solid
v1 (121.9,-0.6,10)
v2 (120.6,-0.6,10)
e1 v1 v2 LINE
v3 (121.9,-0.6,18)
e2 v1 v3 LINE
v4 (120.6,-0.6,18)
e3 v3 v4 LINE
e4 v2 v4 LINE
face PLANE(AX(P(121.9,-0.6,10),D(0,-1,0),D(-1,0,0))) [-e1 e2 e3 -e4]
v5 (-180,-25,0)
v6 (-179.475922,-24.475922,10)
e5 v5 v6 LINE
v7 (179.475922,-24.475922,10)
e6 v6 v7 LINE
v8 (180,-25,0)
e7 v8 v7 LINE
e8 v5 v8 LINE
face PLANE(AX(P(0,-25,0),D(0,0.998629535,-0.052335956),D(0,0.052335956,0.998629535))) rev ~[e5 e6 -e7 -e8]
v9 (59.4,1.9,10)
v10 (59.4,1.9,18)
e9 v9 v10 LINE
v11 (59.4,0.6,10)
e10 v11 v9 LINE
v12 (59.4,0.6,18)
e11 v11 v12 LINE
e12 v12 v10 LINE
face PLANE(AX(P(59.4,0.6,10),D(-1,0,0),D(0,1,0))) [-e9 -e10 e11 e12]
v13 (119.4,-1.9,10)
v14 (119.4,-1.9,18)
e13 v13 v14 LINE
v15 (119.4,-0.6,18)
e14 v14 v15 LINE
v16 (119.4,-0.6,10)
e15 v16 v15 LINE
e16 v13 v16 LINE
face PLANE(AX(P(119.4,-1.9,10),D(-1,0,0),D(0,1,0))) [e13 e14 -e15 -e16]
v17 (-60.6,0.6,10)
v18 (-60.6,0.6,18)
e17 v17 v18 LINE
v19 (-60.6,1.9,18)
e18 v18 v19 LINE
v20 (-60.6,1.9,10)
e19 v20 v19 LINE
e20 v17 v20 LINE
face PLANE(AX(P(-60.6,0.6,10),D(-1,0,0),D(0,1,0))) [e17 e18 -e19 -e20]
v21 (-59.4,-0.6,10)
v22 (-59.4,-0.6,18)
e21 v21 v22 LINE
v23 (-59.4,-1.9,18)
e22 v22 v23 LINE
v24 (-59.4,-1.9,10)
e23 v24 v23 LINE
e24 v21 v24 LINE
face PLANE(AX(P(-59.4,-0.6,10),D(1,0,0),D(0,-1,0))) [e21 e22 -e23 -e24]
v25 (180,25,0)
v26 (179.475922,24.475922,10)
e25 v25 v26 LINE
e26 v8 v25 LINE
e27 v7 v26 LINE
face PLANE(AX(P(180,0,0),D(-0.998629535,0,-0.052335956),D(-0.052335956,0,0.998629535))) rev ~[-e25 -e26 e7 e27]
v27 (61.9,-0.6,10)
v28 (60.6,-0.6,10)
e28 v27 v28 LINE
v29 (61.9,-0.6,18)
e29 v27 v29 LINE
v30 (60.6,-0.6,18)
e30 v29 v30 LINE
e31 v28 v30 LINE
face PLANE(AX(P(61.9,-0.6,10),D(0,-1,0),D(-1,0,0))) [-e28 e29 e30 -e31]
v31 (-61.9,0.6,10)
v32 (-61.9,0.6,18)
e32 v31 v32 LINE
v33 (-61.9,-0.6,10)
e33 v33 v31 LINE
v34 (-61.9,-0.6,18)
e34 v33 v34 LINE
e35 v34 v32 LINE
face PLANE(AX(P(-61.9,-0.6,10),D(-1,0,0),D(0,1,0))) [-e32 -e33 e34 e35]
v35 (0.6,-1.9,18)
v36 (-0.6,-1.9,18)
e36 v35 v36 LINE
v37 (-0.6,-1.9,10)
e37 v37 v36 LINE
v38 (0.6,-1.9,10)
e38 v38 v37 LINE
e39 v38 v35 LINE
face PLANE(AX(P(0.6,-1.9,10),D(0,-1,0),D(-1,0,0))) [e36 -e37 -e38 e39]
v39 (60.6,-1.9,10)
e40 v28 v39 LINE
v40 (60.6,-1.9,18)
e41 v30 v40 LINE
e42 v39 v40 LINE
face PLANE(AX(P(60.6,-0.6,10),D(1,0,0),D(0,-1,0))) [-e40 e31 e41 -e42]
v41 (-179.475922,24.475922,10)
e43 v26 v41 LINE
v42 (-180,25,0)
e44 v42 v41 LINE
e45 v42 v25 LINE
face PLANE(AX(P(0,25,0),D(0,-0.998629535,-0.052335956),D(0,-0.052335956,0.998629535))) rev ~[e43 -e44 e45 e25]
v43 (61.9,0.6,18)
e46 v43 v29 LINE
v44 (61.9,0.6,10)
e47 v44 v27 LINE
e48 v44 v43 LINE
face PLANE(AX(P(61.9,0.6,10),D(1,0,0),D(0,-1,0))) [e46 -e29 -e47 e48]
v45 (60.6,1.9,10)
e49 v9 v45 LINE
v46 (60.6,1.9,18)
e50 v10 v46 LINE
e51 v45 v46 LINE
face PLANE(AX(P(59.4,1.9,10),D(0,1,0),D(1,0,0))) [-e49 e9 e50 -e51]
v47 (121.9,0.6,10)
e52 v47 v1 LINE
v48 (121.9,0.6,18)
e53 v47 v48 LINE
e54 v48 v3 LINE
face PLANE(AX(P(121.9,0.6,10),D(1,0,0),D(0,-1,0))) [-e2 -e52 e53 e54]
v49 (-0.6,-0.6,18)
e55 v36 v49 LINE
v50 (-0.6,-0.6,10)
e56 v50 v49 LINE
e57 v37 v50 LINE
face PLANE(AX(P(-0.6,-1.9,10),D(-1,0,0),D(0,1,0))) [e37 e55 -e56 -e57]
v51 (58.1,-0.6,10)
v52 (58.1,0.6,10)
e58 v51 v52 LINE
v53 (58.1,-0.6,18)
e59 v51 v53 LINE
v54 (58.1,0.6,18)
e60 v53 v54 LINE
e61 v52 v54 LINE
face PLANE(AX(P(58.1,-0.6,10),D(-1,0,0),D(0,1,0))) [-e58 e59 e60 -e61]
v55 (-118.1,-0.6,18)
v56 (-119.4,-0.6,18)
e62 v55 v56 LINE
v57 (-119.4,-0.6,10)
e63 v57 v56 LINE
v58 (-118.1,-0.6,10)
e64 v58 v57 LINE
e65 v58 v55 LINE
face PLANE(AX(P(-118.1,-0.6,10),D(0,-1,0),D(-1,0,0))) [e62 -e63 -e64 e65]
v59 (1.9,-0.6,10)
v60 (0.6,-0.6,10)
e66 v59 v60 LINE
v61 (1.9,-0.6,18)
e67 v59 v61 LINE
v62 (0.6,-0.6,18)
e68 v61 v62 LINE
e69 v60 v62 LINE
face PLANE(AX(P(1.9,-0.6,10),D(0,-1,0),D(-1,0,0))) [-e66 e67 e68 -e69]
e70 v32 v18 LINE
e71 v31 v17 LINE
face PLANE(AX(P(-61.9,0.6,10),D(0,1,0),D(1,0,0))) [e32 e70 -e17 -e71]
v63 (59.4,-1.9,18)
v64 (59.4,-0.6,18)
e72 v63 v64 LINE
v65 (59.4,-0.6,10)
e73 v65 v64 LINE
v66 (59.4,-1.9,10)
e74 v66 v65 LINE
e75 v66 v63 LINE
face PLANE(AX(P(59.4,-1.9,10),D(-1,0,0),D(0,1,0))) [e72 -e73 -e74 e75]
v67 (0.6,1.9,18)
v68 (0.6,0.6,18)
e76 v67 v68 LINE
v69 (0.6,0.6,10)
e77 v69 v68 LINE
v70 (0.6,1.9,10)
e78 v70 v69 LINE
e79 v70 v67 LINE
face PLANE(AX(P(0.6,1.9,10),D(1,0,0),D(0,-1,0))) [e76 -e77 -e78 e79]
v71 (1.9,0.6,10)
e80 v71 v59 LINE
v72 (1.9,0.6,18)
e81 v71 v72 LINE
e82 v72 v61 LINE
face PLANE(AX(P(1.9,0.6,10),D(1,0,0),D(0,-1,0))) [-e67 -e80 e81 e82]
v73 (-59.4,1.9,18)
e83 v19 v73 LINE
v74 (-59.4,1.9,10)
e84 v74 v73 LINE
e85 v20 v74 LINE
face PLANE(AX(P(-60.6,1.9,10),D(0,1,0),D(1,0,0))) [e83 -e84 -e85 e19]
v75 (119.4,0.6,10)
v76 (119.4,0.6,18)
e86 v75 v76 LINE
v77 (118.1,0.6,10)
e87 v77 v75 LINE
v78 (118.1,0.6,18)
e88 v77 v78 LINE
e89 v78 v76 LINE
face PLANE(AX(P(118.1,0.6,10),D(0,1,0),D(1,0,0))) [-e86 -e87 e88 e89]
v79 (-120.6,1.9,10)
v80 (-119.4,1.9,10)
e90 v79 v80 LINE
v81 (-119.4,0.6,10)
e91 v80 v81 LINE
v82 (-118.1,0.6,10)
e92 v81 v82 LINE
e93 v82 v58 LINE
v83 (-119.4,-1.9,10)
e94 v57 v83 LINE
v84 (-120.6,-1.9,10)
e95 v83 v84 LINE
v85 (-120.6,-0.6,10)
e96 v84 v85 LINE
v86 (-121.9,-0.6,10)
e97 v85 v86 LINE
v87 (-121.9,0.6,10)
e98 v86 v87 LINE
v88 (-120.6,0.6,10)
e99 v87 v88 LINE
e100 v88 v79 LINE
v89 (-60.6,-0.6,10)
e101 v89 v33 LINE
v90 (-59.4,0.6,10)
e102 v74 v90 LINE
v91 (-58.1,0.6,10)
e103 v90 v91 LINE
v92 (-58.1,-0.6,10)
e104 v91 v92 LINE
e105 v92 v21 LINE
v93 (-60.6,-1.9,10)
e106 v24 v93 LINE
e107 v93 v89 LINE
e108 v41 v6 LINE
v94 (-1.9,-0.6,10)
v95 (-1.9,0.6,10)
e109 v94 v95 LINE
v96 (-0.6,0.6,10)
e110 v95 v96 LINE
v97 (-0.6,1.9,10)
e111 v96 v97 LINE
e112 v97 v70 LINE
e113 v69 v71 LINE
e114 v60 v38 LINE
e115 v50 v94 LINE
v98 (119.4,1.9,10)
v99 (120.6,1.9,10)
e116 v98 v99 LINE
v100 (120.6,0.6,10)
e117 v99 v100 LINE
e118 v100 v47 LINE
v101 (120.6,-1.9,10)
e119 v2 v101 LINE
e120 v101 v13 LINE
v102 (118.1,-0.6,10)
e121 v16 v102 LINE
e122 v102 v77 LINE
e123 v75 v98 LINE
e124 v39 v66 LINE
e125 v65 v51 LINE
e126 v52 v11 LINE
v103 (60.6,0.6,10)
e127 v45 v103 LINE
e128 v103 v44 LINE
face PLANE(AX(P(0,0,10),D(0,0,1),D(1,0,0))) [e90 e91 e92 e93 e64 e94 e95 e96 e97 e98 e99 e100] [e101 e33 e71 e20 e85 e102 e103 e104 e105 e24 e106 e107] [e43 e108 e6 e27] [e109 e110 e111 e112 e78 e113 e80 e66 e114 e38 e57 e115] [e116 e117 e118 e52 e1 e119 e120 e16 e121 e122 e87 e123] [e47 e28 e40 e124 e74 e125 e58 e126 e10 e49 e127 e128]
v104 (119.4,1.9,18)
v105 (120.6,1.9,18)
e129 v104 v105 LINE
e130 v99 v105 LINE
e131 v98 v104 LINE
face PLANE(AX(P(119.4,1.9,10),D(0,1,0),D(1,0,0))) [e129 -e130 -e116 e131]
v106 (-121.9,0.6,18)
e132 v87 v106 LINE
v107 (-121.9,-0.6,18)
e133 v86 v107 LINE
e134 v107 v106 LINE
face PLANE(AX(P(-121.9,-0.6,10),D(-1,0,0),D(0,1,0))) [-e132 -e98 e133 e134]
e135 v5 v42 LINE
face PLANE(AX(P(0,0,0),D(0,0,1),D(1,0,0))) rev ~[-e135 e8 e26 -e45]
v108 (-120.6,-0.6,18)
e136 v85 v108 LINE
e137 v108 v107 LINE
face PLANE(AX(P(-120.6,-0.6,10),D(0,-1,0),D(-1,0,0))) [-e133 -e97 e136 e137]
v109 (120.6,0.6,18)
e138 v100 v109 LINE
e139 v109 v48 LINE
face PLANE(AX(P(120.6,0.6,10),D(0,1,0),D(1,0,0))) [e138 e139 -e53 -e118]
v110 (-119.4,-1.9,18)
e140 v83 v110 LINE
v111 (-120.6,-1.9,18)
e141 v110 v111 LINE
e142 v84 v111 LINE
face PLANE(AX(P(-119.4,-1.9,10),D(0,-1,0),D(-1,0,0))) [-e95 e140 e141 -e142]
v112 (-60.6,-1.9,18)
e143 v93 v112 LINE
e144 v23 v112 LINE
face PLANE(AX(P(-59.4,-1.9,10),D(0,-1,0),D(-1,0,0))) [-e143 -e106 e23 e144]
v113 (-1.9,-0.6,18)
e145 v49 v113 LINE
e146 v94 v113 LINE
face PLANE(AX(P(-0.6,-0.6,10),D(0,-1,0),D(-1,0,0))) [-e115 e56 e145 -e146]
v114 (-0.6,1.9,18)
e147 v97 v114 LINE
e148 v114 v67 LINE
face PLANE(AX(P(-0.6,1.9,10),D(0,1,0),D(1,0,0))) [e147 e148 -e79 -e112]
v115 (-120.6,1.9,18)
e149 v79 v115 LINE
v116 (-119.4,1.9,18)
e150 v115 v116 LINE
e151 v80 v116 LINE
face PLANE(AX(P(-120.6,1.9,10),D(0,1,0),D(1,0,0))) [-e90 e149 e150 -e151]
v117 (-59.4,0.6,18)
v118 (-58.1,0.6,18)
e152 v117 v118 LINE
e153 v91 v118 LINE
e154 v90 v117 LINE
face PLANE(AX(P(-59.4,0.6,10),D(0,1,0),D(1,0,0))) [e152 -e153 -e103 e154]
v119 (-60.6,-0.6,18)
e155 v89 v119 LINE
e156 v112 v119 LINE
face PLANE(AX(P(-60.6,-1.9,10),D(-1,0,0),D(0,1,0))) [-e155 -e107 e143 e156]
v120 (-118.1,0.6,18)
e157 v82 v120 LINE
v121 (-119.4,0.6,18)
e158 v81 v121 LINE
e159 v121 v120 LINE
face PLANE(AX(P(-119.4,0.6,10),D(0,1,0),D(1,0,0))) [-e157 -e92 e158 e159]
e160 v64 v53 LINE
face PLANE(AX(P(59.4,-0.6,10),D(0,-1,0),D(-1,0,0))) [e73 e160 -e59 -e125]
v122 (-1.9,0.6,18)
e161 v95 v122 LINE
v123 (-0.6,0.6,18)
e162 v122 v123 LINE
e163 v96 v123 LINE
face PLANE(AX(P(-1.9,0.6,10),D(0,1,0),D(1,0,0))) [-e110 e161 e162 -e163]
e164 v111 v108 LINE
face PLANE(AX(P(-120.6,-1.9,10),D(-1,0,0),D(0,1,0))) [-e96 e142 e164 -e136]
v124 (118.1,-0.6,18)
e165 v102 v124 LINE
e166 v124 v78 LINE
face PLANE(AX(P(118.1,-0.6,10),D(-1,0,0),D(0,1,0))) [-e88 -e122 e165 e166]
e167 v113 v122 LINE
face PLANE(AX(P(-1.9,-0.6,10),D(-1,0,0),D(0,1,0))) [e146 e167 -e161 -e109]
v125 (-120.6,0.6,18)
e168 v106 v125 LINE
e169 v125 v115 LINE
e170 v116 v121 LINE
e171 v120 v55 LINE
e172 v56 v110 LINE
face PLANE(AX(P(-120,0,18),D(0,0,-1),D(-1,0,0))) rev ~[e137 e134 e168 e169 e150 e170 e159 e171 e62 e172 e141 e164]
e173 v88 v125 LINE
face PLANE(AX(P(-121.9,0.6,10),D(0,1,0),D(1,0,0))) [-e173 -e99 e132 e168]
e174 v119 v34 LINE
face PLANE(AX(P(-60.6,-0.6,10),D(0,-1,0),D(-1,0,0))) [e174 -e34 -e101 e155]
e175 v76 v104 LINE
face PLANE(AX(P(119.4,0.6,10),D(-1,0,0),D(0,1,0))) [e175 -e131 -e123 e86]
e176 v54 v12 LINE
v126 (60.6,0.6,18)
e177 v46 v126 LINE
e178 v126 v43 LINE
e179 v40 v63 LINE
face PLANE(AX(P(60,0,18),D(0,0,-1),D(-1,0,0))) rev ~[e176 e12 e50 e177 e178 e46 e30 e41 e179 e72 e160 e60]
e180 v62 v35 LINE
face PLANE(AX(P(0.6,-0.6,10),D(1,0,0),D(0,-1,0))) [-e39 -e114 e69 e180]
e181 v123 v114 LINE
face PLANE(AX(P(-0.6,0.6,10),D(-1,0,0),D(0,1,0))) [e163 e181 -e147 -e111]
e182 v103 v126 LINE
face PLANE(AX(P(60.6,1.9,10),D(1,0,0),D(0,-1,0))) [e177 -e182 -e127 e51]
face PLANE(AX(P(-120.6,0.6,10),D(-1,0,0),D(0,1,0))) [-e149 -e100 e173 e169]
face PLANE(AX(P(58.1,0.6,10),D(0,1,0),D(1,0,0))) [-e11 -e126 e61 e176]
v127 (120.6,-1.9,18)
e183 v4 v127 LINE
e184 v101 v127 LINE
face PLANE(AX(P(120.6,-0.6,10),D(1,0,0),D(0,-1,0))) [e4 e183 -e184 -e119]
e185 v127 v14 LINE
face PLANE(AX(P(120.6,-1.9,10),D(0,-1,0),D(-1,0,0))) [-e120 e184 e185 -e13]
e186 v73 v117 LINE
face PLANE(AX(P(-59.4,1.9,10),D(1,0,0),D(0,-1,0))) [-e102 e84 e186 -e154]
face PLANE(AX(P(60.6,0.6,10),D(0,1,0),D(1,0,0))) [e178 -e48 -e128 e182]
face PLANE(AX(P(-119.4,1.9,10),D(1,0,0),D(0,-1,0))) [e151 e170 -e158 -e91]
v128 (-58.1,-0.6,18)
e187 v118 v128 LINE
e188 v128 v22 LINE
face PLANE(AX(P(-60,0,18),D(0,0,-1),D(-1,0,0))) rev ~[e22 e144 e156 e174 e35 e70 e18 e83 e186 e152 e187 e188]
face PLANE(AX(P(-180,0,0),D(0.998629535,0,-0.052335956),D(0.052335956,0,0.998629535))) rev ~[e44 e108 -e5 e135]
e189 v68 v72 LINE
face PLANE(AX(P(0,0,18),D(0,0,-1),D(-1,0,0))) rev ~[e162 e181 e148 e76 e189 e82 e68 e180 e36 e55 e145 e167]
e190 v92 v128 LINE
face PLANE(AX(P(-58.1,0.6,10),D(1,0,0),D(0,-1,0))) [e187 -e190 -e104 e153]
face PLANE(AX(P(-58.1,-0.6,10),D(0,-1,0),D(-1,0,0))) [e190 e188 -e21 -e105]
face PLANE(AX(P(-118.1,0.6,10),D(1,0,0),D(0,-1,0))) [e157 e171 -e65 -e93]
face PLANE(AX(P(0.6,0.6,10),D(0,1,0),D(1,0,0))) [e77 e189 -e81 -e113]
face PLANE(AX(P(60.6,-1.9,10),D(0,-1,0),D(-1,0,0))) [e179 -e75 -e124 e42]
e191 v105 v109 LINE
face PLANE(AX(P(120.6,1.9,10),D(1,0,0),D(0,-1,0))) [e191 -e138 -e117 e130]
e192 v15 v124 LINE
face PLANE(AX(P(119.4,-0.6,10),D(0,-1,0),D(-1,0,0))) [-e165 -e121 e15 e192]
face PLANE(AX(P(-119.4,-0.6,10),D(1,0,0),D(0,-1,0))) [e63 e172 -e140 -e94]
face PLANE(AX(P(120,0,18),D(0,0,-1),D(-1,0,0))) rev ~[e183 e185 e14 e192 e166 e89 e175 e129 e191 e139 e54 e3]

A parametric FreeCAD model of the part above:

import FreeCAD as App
import Part
import Sketcher
from FreeCAD import Vector


def add_polygon(sketch, points):
    """Adds a closed chain of lines whose ends are joined by coincident constraints."""
    first, n = sketch.GeometryCount, len(points)
    for a, b in zip(points, points[1:] + points[:1]):
        sketch.addGeometry(Part.LineSegment(App.Vector(*a, 0), App.Vector(*b, 0)), False)
    for i in range(n):
        sketch.addConstraint(Sketcher.Constraint("Coincident", first + i, 2, first + (i + 1) % n, 1))

doc = App.newDocument("Part")
body = doc.addObject("PartDesign::Body", "Body")

# Sketch on XY plane
sketch1 = body.newObject("Sketcher::SketchObject", "Sketch")
sketch1.AttachmentSupport = (doc.getObject("XY_Plane"), [""])
sketch1.MapMode = "FlatFace"
add_polygon(sketch1, [(-180, 25), (-180, -25), (180, -25), (180, 25)])  # lines 0-3
sketch1.addConstraint(Sketcher.Constraint("Vertical", 0))
sketch1.addConstraint(Sketcher.Constraint("Horizontal", 1))
sketch1.addConstraint(Sketcher.Constraint("Vertical", 2))
sketch1.addConstraint(Sketcher.Constraint("Horizontal", 3))
sketch1.addConstraint(Sketcher.Constraint("Symmetric", 0, 2, 2, 2, -1, 1))
sketch1.addConstraint(Sketcher.Constraint("DistanceX", 1, 1, 1, 2, 360.0))
sketch1.addConstraint(Sketcher.Constraint("DistanceY", 0, 2, 0, 1, 50.0))
pad1 = body.newObject("PartDesign::Pad", "Pad")
pad1.Profile = sketch1
pad1.Length = 10
pad1.TaperAngle = -3

# Sketch on XY plane
sketch2 = body.newObject("Sketcher::SketchObject", "Sketch001")
sketch2.AttachmentSupport = (doc.getObject("XY_Plane"), [""])
sketch2.MapMode = "FlatFace"
sketch2.AttachmentOffset = App.Placement(Vector(0, 0, 10), App.Rotation())
add_polygon(sketch2, [(-119.4, 1.9), (-120.6, 1.9), (-120.6, 0.6), (-121.9, 0.6), (-121.9, -0.6), (-120.6, -0.6), (-120.6, -1.9), (-119.4, -1.9), (-119.4, -0.6), (-118.1, -0.6), (-118.1, 0.6), (-119.4, 0.6)])  # lines 0-11
sketch2.addConstraint(Sketcher.Constraint("Horizontal", 0))
sketch2.addConstraint(Sketcher.Constraint("Vertical", 1))
sketch2.addConstraint(Sketcher.Constraint("Horizontal", 2))
sketch2.addConstraint(Sketcher.Constraint("Vertical", 3))
sketch2.addConstraint(Sketcher.Constraint("Horizontal", 4))
sketch2.addConstraint(Sketcher.Constraint("Vertical", 5))
sketch2.addConstraint(Sketcher.Constraint("Horizontal", 6))
sketch2.addConstraint(Sketcher.Constraint("Vertical", 7))
sketch2.addConstraint(Sketcher.Constraint("Horizontal", 8))
sketch2.addConstraint(Sketcher.Constraint("Vertical", 9))
sketch2.addConstraint(Sketcher.Constraint("Horizontal", 10))
sketch2.addConstraint(Sketcher.Constraint("Vertical", 11))
sketch2.addConstraint(Sketcher.Constraint("Symmetric", 1, 2, 4, 2, -1))
sketch2.addConstraint(Sketcher.Constraint("Symmetric", 7, 2, 10, 2, -1))
sketch2.addConstraint(Sketcher.Constraint("Horizontal", 4, 2, 7, 2))
sketch2.addConstraint(Sketcher.Constraint("Equal", 4, 8))
sketch2.addConstraint(Sketcher.Constraint("Equal", 10, 1))
sketch2.addConstraint(Sketcher.Constraint("Equal", 6, 3))
sketch2.addConstraint(Sketcher.Constraint("Equal", 1, 5))
sketch2.addConstraint(Sketcher.Constraint("DistanceX", 0, 2, 0, 1, 1.2))
sketch2.addConstraint(Sketcher.Constraint("DistanceX", 2, 2, 2, 1, 1.3))
sketch2.addConstraint(Sketcher.Constraint("DistanceX", 0, 2, -1, 1, 120.6))
pad2 = body.newObject("PartDesign::Pad", "Pad001")
pad2.Profile = sketch2
pad2.Length = 8
doc.recompute()

linearpattern = body.newObject("PartDesign::LinearPattern", "LinearPattern")
linearpattern.Originals = [pad2]
linearpattern.Direction = (doc.getObject("X_Axis"), [""])
linearpattern.Mode = "offset"
linearpattern.Offset = 60
linearpattern.Occurrences = 5
body.Tip = linearpattern

doc.recompute()
